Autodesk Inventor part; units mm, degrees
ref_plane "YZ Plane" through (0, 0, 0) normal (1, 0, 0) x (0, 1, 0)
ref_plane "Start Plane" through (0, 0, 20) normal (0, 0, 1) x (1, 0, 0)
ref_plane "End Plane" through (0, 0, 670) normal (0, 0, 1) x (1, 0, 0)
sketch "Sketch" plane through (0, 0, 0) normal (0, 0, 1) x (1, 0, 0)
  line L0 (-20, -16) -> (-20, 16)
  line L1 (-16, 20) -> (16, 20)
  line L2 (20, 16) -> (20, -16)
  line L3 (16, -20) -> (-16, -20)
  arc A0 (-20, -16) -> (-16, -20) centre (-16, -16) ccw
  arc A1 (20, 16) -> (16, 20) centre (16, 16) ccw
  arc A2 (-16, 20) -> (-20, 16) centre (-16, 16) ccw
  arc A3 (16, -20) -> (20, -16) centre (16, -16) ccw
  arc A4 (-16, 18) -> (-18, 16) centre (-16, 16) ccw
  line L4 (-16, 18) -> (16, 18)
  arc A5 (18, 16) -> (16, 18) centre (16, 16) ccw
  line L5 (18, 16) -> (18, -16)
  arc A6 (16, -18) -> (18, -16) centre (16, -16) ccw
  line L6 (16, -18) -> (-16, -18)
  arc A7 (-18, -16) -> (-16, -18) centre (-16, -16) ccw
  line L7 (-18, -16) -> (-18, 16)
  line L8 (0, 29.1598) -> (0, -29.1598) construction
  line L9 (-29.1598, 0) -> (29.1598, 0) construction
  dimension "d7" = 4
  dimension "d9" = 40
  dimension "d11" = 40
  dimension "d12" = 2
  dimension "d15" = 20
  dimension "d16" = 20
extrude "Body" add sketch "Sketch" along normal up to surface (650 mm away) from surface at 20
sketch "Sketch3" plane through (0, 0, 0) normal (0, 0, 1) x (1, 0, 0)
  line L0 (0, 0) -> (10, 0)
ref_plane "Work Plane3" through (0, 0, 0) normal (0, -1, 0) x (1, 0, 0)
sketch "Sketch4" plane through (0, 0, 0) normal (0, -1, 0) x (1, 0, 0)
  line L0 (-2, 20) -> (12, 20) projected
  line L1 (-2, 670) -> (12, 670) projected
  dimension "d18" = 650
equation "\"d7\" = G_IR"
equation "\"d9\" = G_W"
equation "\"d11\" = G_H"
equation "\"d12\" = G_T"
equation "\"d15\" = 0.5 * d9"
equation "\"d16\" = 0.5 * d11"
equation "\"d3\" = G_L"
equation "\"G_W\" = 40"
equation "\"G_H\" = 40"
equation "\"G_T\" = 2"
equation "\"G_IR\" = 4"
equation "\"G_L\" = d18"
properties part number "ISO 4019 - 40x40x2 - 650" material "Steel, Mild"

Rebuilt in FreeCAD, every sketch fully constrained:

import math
import FreeCAD as App
import Part
import Sketcher
from FreeCAD import Vector

doc = App.newDocument("Part")
body = doc.addObject("PartDesign::Body", "Body")

# Sketch on XY plane
sketch1 = doc.addObject("Sketcher::SketchObject", "Sketch")
body.addObject(sketch1)
sketch1.AttachmentSupport = (doc.XY_Plane, [""])
sketch1.MapMode = "FlatFace"
sketch1.AttachmentOffset = App.Placement(Vector(0, 0, 20), App.Rotation())
sketch1.addGeometry([
    Part.LineSegment(Vector(-20, 16, 0), Vector(-20, -16, 0)),  # 0
    Part.ArcOfCircle(Part.Circle(Vector(-16, -16, 0), Vector(0, 0, 1), 4), math.radians(180), math.radians(270)),  # 1
    Part.LineSegment(Vector(-16, -20, 0), Vector(16, -20, 0)),  # 2
    Part.ArcOfCircle(Part.Circle(Vector(16, -16, 0), Vector(0, 0, 1), 4), math.radians(-90), math.radians(0)),  # 3
    Part.LineSegment(Vector(20, -16, 0), Vector(20, 16, 0)),  # 4
    Part.ArcOfCircle(Part.Circle(Vector(16, 16, 0), Vector(0, 0, 1), 4), math.radians(0), math.radians(90)),  # 5
    Part.LineSegment(Vector(16, 20, 0), Vector(-16, 20, 0)),  # 6
    Part.ArcOfCircle(Part.Circle(Vector(-16, 16, 0), Vector(0, 0, 1), 4), math.radians(90), math.radians(180)),  # 7
    Part.ArcOfCircle(Part.Circle(Vector(-16, 16, 0), Vector(0, 0, 1), 2), math.radians(90), math.radians(180)),  # 8
    Part.LineSegment(Vector(-16, 18, 0), Vector(16, 18, 0)),  # 9
    Part.ArcOfCircle(Part.Circle(Vector(16, 16, 0), Vector(0, 0, 1), 2), math.radians(0), math.radians(90)),  # 10
    Part.LineSegment(Vector(18, 16, 0), Vector(18, -16, 0)),  # 11
    Part.ArcOfCircle(Part.Circle(Vector(16, -16, 0), Vector(0, 0, 1), 2), math.radians(-90), math.radians(0)),  # 12
    Part.LineSegment(Vector(16, -18, 0), Vector(-16, -18, 0)),  # 13
    Part.ArcOfCircle(Part.Circle(Vector(-16, -16, 0), Vector(0, 0, 1), 2), math.radians(180), math.radians(270)),  # 14
    Part.LineSegment(Vector(-18, -16, 0), Vector(-18, 16, 0)),  # 15
], False)
sketch1.addConstraint([
    Sketcher.Constraint("Tangent", 0, 2, 1, 1),
    Sketcher.Constraint("Tangent", 1, 2, 2, 1),
    Sketcher.Constraint("Tangent", 2, 2, 3, 1),
    Sketcher.Constraint("Tangent", 3, 2, 4, 1),
    Sketcher.Constraint("Tangent", 4, 2, 5, 1),
    Sketcher.Constraint("Tangent", 5, 2, 6, 1),
    Sketcher.Constraint("Tangent", 6, 2, 7, 1),
    Sketcher.Constraint("Tangent", 7, 2, 0, 1),
    Sketcher.Constraint("Tangent", 8, 1, 9, 1),
    Sketcher.Constraint("Tangent", 9, 2, 10, 2),
    Sketcher.Constraint("Tangent", 10, 1, 11, 1),
    Sketcher.Constraint("Tangent", 11, 2, 12, 2),
    Sketcher.Constraint("Tangent", 12, 1, 13, 1),
    Sketcher.Constraint("Tangent", 13, 2, 14, 2),
    Sketcher.Constraint("Tangent", 14, 1, 15, 1),
    Sketcher.Constraint("Tangent", 15, 2, 8, 2),
    Sketcher.Constraint("Vertical", 0),
    Sketcher.Constraint("Horizontal", 2),
    Sketcher.Constraint("Vertical", 4),
    Sketcher.Constraint("Horizontal", 6),
    Sketcher.Constraint("Horizontal", 9),
    Sketcher.Constraint("Vertical", 11),
    Sketcher.Constraint("Horizontal", 13),
    Sketcher.Constraint("Vertical", 15),
    Sketcher.Constraint("Coincident", 8, 3, 7, 3),
    Sketcher.Constraint("Coincident", 10, 3, 5, 3),
    Sketcher.Constraint("Coincident", 12, 3, 3, 3),
    Sketcher.Constraint("Equal", 1, 3),
    Sketcher.Constraint("Equal", 3, 5),
    Sketcher.Constraint("Equal", 5, 7),
    Sketcher.Constraint("Equal", 12, 14),
    Sketcher.Constraint("Symmetric", 1, 3, 5, 3, -1, 1),
    Sketcher.Constraint("Equal", 13, 0),
    Sketcher.Constraint("Radius", 1, 4.0),
    Sketcher.Constraint("Radius", 8, 2.0),
    Sketcher.Constraint("DistanceX", 0, 2, -1, 1, 20.0),
])
pad1 = doc.addObject("PartDesign::Pad", "Pad")
body.addObject(pad1)
pad1.Profile = sketch1
pad1.Length = 650

doc.recompute()
